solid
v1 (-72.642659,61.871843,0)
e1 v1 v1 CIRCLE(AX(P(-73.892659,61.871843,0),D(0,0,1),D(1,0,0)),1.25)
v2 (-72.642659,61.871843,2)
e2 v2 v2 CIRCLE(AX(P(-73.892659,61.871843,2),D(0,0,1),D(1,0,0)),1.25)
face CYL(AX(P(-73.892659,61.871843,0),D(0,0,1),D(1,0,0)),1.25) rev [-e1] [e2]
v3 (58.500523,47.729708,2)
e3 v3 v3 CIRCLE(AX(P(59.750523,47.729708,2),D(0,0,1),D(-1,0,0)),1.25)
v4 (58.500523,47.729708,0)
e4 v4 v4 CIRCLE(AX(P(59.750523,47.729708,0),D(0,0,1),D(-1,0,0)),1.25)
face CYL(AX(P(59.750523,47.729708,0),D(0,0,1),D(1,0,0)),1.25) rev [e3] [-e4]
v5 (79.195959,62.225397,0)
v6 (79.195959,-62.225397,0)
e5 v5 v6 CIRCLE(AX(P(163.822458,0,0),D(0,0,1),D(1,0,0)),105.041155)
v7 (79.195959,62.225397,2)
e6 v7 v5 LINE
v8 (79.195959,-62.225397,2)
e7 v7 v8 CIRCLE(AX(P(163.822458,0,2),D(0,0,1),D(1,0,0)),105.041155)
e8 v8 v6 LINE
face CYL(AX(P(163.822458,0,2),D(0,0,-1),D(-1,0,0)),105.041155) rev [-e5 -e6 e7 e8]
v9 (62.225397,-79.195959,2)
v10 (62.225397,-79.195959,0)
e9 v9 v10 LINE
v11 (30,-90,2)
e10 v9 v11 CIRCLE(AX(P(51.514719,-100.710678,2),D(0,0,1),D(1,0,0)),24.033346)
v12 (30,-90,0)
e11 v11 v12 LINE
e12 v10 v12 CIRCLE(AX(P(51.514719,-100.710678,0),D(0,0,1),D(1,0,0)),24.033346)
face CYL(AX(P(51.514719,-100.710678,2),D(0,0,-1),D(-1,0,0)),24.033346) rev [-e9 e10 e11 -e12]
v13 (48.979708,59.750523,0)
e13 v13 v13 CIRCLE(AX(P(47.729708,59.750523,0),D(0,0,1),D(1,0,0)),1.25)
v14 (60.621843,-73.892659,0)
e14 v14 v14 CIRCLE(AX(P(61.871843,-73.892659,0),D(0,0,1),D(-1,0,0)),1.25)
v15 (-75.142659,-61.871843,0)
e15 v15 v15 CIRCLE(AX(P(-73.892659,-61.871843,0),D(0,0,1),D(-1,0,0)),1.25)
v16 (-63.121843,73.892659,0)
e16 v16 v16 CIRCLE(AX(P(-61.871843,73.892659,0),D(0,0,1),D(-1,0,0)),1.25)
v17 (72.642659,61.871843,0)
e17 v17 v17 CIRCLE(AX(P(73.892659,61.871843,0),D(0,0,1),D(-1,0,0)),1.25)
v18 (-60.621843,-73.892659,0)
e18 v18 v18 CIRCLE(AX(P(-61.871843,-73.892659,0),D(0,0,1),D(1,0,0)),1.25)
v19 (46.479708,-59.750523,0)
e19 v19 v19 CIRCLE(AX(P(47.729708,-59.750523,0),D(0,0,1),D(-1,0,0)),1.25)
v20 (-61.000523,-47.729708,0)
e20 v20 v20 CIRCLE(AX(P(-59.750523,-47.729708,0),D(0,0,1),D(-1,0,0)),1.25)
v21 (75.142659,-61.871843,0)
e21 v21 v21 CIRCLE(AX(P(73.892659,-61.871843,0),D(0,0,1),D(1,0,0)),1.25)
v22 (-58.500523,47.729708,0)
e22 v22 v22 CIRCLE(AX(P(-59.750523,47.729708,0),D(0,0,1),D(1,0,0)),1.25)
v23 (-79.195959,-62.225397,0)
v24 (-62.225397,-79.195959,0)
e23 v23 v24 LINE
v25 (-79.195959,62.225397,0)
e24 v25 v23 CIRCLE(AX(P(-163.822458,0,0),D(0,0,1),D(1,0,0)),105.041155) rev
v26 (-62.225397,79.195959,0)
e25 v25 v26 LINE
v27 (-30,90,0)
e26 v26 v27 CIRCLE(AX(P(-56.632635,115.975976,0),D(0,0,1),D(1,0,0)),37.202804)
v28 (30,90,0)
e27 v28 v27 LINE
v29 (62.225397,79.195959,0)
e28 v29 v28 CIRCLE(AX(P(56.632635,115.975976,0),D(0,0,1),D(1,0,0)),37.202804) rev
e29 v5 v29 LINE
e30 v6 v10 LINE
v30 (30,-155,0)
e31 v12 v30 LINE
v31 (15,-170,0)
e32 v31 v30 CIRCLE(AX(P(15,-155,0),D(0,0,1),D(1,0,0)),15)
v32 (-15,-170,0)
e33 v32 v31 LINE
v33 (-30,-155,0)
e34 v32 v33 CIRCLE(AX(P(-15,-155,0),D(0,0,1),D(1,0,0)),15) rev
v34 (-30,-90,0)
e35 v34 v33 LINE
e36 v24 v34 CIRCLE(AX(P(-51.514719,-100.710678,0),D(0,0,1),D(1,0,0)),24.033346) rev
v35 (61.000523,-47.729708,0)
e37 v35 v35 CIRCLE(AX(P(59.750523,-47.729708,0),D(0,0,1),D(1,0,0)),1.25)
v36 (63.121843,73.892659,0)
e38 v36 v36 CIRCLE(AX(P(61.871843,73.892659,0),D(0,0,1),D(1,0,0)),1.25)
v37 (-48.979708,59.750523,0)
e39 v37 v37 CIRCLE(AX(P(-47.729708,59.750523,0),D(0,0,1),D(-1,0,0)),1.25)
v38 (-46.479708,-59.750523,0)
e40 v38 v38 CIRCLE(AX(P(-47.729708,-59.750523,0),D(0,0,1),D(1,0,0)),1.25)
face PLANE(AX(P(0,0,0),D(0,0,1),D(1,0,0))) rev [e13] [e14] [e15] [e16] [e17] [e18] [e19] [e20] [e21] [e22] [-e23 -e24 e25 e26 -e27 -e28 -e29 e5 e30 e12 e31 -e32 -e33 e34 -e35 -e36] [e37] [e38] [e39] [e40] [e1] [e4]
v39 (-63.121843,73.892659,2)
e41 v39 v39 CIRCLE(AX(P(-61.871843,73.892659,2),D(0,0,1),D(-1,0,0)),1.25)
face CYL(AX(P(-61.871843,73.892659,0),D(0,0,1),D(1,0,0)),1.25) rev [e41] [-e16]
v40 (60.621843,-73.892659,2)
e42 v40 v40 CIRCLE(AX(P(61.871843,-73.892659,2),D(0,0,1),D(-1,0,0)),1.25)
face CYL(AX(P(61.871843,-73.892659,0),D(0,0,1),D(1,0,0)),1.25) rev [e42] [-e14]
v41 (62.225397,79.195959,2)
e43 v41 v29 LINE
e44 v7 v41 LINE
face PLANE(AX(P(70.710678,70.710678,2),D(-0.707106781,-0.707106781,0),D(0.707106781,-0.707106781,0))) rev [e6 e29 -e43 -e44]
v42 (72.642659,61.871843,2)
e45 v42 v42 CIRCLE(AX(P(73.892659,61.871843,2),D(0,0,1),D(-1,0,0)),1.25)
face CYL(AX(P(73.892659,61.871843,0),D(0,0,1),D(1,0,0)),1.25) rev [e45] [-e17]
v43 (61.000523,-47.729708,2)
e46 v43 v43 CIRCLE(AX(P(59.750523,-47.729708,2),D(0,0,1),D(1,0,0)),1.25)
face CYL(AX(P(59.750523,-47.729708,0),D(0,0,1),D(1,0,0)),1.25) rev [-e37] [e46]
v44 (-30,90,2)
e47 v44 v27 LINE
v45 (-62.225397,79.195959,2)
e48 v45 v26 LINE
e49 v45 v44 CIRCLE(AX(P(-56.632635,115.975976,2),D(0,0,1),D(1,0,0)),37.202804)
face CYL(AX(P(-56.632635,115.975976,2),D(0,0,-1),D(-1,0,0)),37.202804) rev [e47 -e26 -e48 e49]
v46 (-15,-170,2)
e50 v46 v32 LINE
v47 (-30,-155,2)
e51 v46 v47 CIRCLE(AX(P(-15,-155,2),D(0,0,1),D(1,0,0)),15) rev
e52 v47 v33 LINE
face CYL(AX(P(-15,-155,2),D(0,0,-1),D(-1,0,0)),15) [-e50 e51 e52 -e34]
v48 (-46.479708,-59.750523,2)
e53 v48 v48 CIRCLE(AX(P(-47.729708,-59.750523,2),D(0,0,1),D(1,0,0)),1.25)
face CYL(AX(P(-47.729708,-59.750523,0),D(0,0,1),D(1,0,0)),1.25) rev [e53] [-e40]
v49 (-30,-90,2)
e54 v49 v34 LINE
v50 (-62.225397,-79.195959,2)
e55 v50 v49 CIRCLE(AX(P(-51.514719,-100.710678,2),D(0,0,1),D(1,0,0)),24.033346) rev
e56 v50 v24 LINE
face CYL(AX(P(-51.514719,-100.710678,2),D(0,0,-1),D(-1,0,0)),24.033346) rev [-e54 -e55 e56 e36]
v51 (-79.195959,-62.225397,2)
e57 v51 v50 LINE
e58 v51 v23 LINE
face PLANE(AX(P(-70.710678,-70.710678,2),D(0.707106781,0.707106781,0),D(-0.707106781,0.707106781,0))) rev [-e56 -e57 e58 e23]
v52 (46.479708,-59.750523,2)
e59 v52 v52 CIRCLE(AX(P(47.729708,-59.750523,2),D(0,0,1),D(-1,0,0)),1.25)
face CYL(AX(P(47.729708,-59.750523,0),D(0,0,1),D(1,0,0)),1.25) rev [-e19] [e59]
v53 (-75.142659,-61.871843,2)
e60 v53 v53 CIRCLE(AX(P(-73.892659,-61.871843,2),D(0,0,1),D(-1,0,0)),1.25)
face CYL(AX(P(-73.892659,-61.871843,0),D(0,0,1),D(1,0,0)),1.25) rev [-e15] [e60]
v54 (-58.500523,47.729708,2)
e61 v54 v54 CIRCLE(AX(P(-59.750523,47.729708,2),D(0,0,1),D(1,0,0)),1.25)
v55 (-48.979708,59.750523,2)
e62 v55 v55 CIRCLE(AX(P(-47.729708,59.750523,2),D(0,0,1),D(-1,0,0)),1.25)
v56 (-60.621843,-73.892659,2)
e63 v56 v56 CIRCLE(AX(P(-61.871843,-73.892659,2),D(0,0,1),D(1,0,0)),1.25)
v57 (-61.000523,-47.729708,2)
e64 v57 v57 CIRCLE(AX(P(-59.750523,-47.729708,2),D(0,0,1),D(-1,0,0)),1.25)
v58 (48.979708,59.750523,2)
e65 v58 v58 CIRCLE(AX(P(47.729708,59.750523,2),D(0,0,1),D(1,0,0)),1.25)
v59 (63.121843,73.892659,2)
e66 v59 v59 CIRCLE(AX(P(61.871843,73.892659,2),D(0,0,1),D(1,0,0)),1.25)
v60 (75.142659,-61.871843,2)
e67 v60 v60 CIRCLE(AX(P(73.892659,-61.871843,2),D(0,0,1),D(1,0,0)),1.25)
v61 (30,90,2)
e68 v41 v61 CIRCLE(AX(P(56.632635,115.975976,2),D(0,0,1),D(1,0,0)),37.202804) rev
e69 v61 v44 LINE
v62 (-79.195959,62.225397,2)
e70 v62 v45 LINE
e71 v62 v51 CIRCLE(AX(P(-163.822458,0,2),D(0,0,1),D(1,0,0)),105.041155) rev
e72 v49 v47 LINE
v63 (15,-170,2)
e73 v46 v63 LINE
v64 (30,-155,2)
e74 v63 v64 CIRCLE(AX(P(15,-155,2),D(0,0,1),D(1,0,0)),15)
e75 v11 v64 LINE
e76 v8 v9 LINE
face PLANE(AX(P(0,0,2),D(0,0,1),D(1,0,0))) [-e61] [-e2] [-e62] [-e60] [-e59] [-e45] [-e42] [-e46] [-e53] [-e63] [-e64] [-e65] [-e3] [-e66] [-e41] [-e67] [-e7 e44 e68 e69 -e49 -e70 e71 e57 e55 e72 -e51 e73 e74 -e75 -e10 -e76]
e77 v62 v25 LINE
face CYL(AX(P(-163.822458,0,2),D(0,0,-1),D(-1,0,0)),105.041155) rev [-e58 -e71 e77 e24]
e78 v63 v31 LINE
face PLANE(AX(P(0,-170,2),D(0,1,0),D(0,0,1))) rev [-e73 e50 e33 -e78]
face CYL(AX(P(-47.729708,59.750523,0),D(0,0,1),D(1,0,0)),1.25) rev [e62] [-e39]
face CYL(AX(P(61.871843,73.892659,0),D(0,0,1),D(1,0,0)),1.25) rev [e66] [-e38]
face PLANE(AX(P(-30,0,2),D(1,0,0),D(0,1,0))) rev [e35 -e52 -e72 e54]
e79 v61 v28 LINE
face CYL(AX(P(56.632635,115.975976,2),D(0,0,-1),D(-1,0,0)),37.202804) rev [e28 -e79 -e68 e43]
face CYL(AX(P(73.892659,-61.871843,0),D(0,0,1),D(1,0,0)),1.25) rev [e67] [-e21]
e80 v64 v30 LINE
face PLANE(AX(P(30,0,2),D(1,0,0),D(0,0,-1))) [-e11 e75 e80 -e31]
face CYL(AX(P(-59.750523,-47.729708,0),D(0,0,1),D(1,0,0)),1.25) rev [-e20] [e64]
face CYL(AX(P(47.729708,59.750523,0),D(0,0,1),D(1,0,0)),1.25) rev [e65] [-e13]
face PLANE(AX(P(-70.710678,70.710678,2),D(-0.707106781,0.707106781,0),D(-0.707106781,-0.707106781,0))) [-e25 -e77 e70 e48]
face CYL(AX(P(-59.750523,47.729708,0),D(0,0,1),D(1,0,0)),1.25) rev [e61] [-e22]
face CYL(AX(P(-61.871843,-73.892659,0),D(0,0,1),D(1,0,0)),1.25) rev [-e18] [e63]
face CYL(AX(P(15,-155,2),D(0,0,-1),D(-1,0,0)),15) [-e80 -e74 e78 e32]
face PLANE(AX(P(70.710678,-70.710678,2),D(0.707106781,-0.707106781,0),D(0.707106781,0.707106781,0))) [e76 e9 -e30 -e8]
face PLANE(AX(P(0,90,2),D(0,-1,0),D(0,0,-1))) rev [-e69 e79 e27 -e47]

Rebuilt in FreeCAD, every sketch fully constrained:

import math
import FreeCAD as App
import Part
import Sketcher

doc = App.newDocument("Part")
body = doc.addObject("PartDesign::Body", "Body")

sketch1 = doc.addObject("Sketcher::SketchObject", "Sketch")
body.addObject(sketch1)
sketch1.AttachmentSupport = (doc.XY_Plane, [""])
sketch1.MapMode = "FlatFace"
sketch1.addGeometry([
    Part.LineSegment(App.Vector(-62, 79, 0), App.Vector(-79, 62, 0)),
    Part.ArcOfCircle(Part.Circle(App.Vector(-164, 0, 0), App.Vector(0, 0, 1), 105), math.radians(-36), math.radians(36)),
    Part.LineSegment(App.Vector(-79, -62, 0), App.Vector(-62, -79, 0)),
    Part.ArcOfCircle(Part.Circle(App.Vector(-52, -101, 0), App.Vector(0, 0, 1), 24), math.radians(26), math.radians(116)),
    Part.LineSegment(App.Vector(-30, -90, 0), App.Vector(-30, -155, 0)),
    Part.ArcOfCircle(Part.Circle(App.Vector(-15, -155, 0), App.Vector(0, 0, 1), 15), math.radians(180), math.radians(270)),
    Part.LineSegment(App.Vector(-15, -170, 0), App.Vector(15, -170, 0)),
    Part.ArcOfCircle(Part.Circle(App.Vector(15, -155, 0), App.Vector(0, 0, 1), 15), math.radians(-90), math.radians(0)),
    Part.LineSegment(App.Vector(30, -155, 0), App.Vector(30, -90, 0)),
    Part.ArcOfCircle(Part.Circle(App.Vector(52, -101, 0), App.Vector(0, 0, 1), 24), math.radians(64), math.radians(154)),
    Part.LineSegment(App.Vector(62, -79, 0), App.Vector(79, -62, 0)),
    Part.ArcOfCircle(Part.Circle(App.Vector(164, 0, 0), App.Vector(0, 0, 1), 105), math.radians(144), math.radians(216)),
    Part.LineSegment(App.Vector(79, 62, 0), App.Vector(62, 79, 0)),
    Part.ArcOfCircle(Part.Circle(App.Vector(57, 116, 0), App.Vector(0, 0, 1), 37), math.radians(-136), math.radians(-81)),
    Part.LineSegment(App.Vector(30, 90, 0), App.Vector(-30, 90, 0)),
    Part.ArcOfCircle(Part.Circle(App.Vector(-57, 116, 0), App.Vector(0, 0, 1), 37), math.radians(-99), math.radians(-44)),
], False)
sketch1.addConstraint([
    Sketcher.Constraint("Coincident", 0, 2, 1, 2),
    Sketcher.Constraint("Coincident", 1, 1, 2, 1),
    Sketcher.Constraint("Coincident", 2, 2, 3, 2),
    Sketcher.Constraint("Coincident", 3, 1, 4, 1),
    Sketcher.Constraint("Tangent", 4, 2, 5, 1),
    Sketcher.Constraint("Tangent", 5, 2, 6, 1),
    Sketcher.Constraint("Tangent", 6, 2, 7, 1),
    Sketcher.Constraint("Tangent", 7, 2, 8, 1),
    Sketcher.Constraint("Coincident", 8, 2, 9, 2),
    Sketcher.Constraint("Coincident", 9, 1, 10, 1),
    Sketcher.Constraint("Coincident", 10, 2, 11, 2),
    Sketcher.Constraint("Coincident", 11, 1, 12, 1),
    Sketcher.Constraint("Coincident", 12, 2, 13, 2),
    Sketcher.Constraint("Coincident", 13, 1, 14, 1),
    Sketcher.Constraint("Coincident", 14, 2, 15, 2),
    Sketcher.Constraint("Coincident", 15, 1, 0, 1),
    Sketcher.Constraint("Vertical", 4),
    Sketcher.Constraint("Horizontal", 6),
    Sketcher.Constraint("Vertical", 8),
    Sketcher.Constraint("Horizontal", 14),
    Sketcher.Constraint("Equal", 5, 7),
    Sketcher.Constraint("Equal", 3, 9),
    Sketcher.Constraint("Equal", 1, 11),
    Sketcher.Constraint("Equal", 13, 15),
    Sketcher.Constraint("Symmetric", 1, 3, 11, 3, -1, 1),
    Sketcher.Constraint("Symmetric", 2, 2, 12, 2, -1, 1),
    Sketcher.Constraint("Symmetric", 3, 1, 13, 1, -1, 1),
    Sketcher.Constraint("Symmetric", 8, 2, 14, 2, -1, 1),
    Sketcher.Constraint("Symmetric", 9, 1, 15, 1, -1, 1),
    Sketcher.Constraint("Symmetric", 3, 3, 9, 3, -2),
    Sketcher.Constraint("Symmetric", 1, 1, 10, 2, -2),
    Sketcher.Constraint("Perpendicular", 0, 2),
    Sketcher.Constraint("Perpendicular", 2, 10),
    Sketcher.Constraint("Perpendicular", 10, 12),
    Sketcher.Constraint("Horizontal", 13, 3, 15, 3),
    Sketcher.Constraint("Radius", 5, 15.0),
    Sketcher.Constraint("DistanceX", 6, 1, 6, 2, 30.0),
    Sketcher.Constraint("DistanceY", 4, 2, 4, 1, 65.0),
    Sketcher.Constraint("Distance", 0, 24.0),
    Sketcher.Constraint("DistanceY", 5, 3, -1, 1, 155.0),
    Sketcher.Constraint("Radius", 1, 105.041155),
    Sketcher.Constraint("Radius", 3, 24.033346),
    Sketcher.Constraint("Radius", 13, 37.202804),
    Sketcher.Constraint("DistanceX", 1, 3, 0, 2, 84.626499),
    Sketcher.Constraint("DistanceX", 1, 3, -1, 1, 163.822458),
])
pad1 = doc.addObject("PartDesign::Pad", "Pad")
body.addObject(pad1)
pad1.Profile = sketch1
pad1.Length = 2

sketch2 = doc.addObject("Sketcher::SketchObject", "Sketch001")
body.addObject(sketch2)
sketch2.AttachmentSupport = (doc.XY_Plane, [""])
sketch2.MapMode = "FlatFace"
sketch2.AttachmentOffset = App.Placement(App.Vector(0, 0, 2), App.Rotation())
sketch2.addGeometry([
    Part.Circle(App.Vector(-73.9, 61.9, 0), App.Vector(0, 0, 1), 1.2),
    Part.Circle(App.Vector(-59.8, 47.7, 0), App.Vector(0, 0, 1), 1.2),
    Part.Circle(App.Vector(-61.9, 73.9, 0), App.Vector(0, 0, 1), 1.2),
    Part.Circle(App.Vector(-47.7, 59.8, 0), App.Vector(0, 0, 1), 1.2),
    Part.Circle(App.Vector(59.8, 47.7, 0), App.Vector(0, 0, 1), 1.2),
    Part.Circle(App.Vector(73.9, 61.9, 0), App.Vector(0, 0, 1), 1.2),
    Part.Circle(App.Vector(61.9, 73.9, 0), App.Vector(0, 0, 1), 1.2),
    Part.Circle(App.Vector(47.7, 59.8, 0), App.Vector(0, 0, 1), 1.2),
    Part.Circle(App.Vector(-59.8, -47.7, 0), App.Vector(0, 0, 1), 1.2),
    Part.Circle(App.Vector(-47.7, -59.8, 0), App.Vector(0, 0, 1), 1.2),
    Part.Circle(App.Vector(-61.9, -73.9, 0), App.Vector(0, 0, 1), 1.2),
    Part.Circle(App.Vector(-73.9, -61.9, 0), App.Vector(0, 0, 1), 1.2),
    Part.Circle(App.Vector(59.8, -47.7, 0), App.Vector(0, 0, 1), 1.2),
    Part.Circle(App.Vector(73.9, -61.9, 0), App.Vector(0, 0, 1), 1.2),
    Part.Circle(App.Vector(61.9, -73.9, 0), App.Vector(0, 0, 1), 1.2),
    Part.Circle(App.Vector(47.7, -59.8, 0), App.Vector(0, 0, 1), 1.2),
], False)
sketch2.addConstraint([
    Sketcher.Constraint("Equal", 0, 1),
    Sketcher.Constraint("Equal", 1, 2),
    Sketcher.Constraint("Equal", 2, 3),
    Sketcher.Constraint("Equal", 3, 4),
    Sketcher.Constraint("Equal", 4, 5),
    Sketcher.Constraint("Equal", 5, 6),
    Sketcher.Constraint("Equal", 6, 7),
    Sketcher.Constraint("Equal", 7, 8),
    Sketcher.Constraint("Equal", 8, 9),
    Sketcher.Constraint("Equal", 9, 10),
    Sketcher.Constraint("Equal", 10, 11),
    Sketcher.Constraint("Equal", 11, 12),
    Sketcher.Constraint("Equal", 12, 13),
    Sketcher.Constraint("Equal", 13, 14),
    Sketcher.Constraint("Equal", 14, 15),
    Sketcher.Constraint("Symmetric", 4, 3, 8, 3, -1, 1),
    Sketcher.Constraint("Symmetric", 7, 3, 9, 3, -1, 1),
    Sketcher.Constraint("Symmetric", 6, 3, 10, 3, -1, 1),
    Sketcher.Constraint("Symmetric", 5, 3, 11, 3, -1, 1),
    Sketcher.Constraint("Symmetric", 1, 3, 12, 3, -1, 1),
    Sketcher.Constraint("Symmetric", 0, 3, 13, 3, -1, 1),
    Sketcher.Constraint("Symmetric", 2, 3, 14, 3, -1, 1),
    Sketcher.Constraint("Symmetric", 3, 3, 15, 3, -1, 1),
    Sketcher.Constraint("Symmetric", 1, 3, 4, 3, -2),
    Sketcher.Constraint("Symmetric", 0, 3, 5, 3, -2),
    Sketcher.Constraint("Symmetric", 2, 3, 6, 3, -2),
    Sketcher.Constraint("Symmetric", 3, 3, 7, 3, -2),
    Sketcher.Constraint("Diameter", 0, 2.5),
    Sketcher.Constraint("DistanceX", 2, 3, 5, 3, 135.764502),
    Sketcher.Constraint("DistanceY", 10, 3, 0, 3, 135.764502),
    Sketcher.Constraint("DistanceX", 0, 3, -1, 1, 73.892659),
    Sketcher.Constraint("DistanceY", -1, 1, 2, 3, 73.892659),
    Sketcher.Constraint("DistanceX", 2, 3, 1, 3, 2.12132),
    Sketcher.Constraint("DistanceY", 1, 3, 2, 3, 26.162951),
    Sketcher.Constraint("DistanceX", 0, 3, 3, 3, 26.162951),
    Sketcher.Constraint("DistanceY", 3, 3, 0, 3, 2.12132),
])
pocket1 = doc.addObject("PartDesign::Pocket", "Pocket")
body.addObject(pocket1)
pocket1.Profile = sketch2
pocket1.Type = "ThroughAll"

doc.recompute()
